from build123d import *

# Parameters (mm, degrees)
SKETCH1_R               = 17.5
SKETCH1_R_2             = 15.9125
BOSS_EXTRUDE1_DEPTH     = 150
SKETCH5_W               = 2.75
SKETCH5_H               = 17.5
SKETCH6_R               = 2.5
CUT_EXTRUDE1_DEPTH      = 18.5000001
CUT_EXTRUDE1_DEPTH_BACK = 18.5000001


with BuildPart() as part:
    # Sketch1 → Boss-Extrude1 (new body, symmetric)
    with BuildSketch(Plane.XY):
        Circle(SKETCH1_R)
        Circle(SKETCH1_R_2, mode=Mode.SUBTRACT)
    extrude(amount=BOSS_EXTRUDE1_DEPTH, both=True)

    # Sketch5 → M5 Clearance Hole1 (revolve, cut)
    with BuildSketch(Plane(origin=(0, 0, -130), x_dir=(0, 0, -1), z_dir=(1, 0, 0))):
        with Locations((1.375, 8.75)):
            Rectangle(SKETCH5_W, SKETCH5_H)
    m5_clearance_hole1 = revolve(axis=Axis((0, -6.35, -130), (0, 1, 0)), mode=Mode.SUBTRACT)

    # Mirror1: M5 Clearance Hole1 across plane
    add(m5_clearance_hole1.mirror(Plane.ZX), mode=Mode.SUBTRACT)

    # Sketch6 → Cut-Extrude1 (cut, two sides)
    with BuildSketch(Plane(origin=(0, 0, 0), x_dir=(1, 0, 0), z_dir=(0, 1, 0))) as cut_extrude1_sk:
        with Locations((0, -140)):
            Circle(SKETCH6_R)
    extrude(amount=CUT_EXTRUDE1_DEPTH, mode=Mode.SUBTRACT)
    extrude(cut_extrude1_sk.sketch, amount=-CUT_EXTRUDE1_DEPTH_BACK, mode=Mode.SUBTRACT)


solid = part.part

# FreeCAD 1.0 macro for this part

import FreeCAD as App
import Part
import Sketcher

V = App.Vector


def add_polygon(sketch, points):
    """Adds a closed chain of lines whose ends are joined by coincident constraints."""
    first, n = sketch.GeometryCount, len(points)
    for a, b in zip(points, points[1:] + points[:1]):
        sketch.addGeometry(Part.LineSegment(App.Vector(*a, 0), App.Vector(*b, 0)), False)
    for i in range(n):
        sketch.addConstraint(Sketcher.Constraint("Coincident", first + i, 2, first + (i + 1) % n, 1))

doc = App.newDocument("Part")
body = doc.addObject("PartDesign::Body", "Body")

# Sketch on XY plane
sketch1 = doc.addObject("Sketcher::SketchObject", "Sketch")
body.addObject(sketch1)
sketch1.AttachmentSupport = (doc.XY_Plane, [""])
sketch1.MapMode = "FlatFace"
sketch1.addGeometry([
    Part.Circle(V(0, 0, 0), V(0, 0, 1), 17.5),
    Part.Circle(V(0, 0, 0), V(0, 0, 1), 15.9125),
], False)
sketch1.addConstraint([
    Sketcher.Constraint("Coincident", 0, 3, -1, 1),
    Sketcher.Constraint("Coincident", 1, 3, -1, 1),
    Sketcher.Constraint("Diameter", 0, 35.0),
    Sketcher.Constraint("Diameter", 1, 31.825),
])
pad1 = doc.addObject("PartDesign::Pad", "Pad")
body.addObject(pad1)
pad1.Profile = sketch1
pad1.Length = 300
pad1.Midplane = True

# Sketch on YZ plane
sketch2 = doc.addObject("Sketcher::SketchObject", "Sketch001")
body.addObject(sketch2)
sketch2.AttachmentSupport = (doc.YZ_Plane, [""])
sketch2.MapMode = "FlatFace"
add_polygon(sketch2, [(17.5, -130), (0, -130), (0, -132.75), (17.5, -132.75)])  # lines 0-3
sketch2.addGeometry(Part.LineSegment(V(0, -130, 0), V(17.5, -130, 0)), True)  # axis
sketch2.addConstraint([
    Sketcher.Constraint("Horizontal", 0),
    Sketcher.Constraint("Vertical", 1),
    Sketcher.Constraint("Horizontal", 2),
    Sketcher.Constraint("Vertical", 3),
    Sketcher.Constraint("Horizontal", 4),
    Sketcher.Constraint("Coincident", 4, 1, 0, 2),
    Sketcher.Constraint("PointOnObject", 0, 2, -2),
    Sketcher.Constraint("Vertical", 2, 2, 4, 2),
    Sketcher.Constraint("DistanceX", 0, 2, 0, 1, 17.5),
    Sketcher.Constraint("DistanceY", 0, 2, -1, 1, 130.0),
    Sketcher.Constraint("DistanceY", 1, 2, 1, 1, 2.75),
])
groove = doc.addObject("PartDesign::Groove", "Groove")
body.addObject(groove)
groove.Profile = sketch2
groove.ReferenceAxis = (sketch2, ["Axis0"])
groove.Angle = 360
doc.recompute()

mirrored = doc.addObject("PartDesign::Mirrored", "Mirrored")
body.addObject(mirrored)
mirrored.Originals = [groove]
mirrored.MirrorPlane = (doc.XZ_Plane, [""])
body.Tip = mirrored

# Sketch on XZ plane
sketch3 = doc.addObject("Sketcher::SketchObject", "Sketch002")
body.addObject(sketch3)
sketch3.AttachmentSupport = (doc.XZ_Plane, [""])
sketch3.MapMode = "FlatFace"
sketch3.addGeometry(Part.Circle(V(0, 140, 0), V(0, 0, 1), 2.5), False)
sketch3.addConstraint([
    Sketcher.Constraint("PointOnObject", 0, 3, -2),
    Sketcher.Constraint("Diameter", 0, 5.0),
    Sketcher.Constraint("DistanceY", -1, 1, 0, 3, 140.0),
])
pocket1 = doc.addObject("PartDesign::Pocket", "Pocket")
body.addObject(pocket1)
pocket1.Profile = sketch3
pocket1.Type = "ThroughAll"
pocket1.Midplane = True

doc.recompute()
